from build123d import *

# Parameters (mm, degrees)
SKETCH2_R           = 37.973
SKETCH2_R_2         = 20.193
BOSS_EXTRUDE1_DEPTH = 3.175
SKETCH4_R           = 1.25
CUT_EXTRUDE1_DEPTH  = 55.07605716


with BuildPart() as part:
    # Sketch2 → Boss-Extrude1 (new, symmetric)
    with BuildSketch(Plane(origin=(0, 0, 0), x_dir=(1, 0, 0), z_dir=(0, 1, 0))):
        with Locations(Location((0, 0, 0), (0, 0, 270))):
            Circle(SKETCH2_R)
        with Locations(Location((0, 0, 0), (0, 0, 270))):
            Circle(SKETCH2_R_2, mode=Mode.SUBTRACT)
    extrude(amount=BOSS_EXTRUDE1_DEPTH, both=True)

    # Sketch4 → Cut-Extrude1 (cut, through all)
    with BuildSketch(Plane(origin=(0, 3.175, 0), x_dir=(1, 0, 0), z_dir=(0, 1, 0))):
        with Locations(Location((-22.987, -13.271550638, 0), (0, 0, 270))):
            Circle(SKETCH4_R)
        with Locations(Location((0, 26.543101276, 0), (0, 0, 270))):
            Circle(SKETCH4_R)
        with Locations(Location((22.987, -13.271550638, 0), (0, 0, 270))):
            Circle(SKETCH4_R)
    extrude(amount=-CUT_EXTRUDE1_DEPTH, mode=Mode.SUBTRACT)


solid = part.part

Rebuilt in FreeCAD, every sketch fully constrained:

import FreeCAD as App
import Part
import Sketcher

V = App.Vector
Q = App.Units.Quantity

doc = App.newDocument("Part")
params = doc.addObject("Spreadsheet::Sheet", "Params")
for row, (alias, value) in enumerate([
    ("sketch1_diameter", "2.99 in"),
    ("sketch1_diameter2", "1.59 in"),
    ("pad1_length", "0.25 in"),
], start=1):
    params.set(f"A{row}", alias)
    params.set(f"B{row}", "=" + value)
    params.setAlias(f"B{row}", alias)

body = doc.addObject("PartDesign::Body", "Body")

# Sketch on XZ plane
sketch1 = body.newObject("Sketcher::SketchObject", "Sketch")
sketch1.AttachmentSupport = (doc.getObject("XZ_Plane"), [""])
sketch1.MapMode = "FlatFace"
sketch1.addGeometry(Part.Circle(V(0, 0, 0), V(0, 0, 1), 38), False)
sketch1.addGeometry(Part.Circle(V(0, 0, 0), V(0, 0, 1), 20), False)
sketch1.addConstraint(Sketcher.Constraint("Coincident", 0, 3, -1, 1))
sketch1.addConstraint(Sketcher.Constraint("Coincident", 1, 3, -1, 1))
sketch1.addConstraint(Sketcher.Constraint("Diameter", 0, Q("2.99 in")))
sketch1.addConstraint(Sketcher.Constraint("Diameter", 1, Q("1.59 in")))
sketch1.setExpression("Constraints[2]", "Params.sketch1_diameter")
sketch1.setExpression("Constraints[3]", "Params.sketch1_diameter2")
pad1 = body.newObject("PartDesign::Pad", "Pad")
pad1.Profile = sketch1
pad1.setExpression("Length", "Params.pad1_length")
pad1.Midplane = True

# Sketch on XZ plane
sketch2 = body.newObject("Sketcher::SketchObject", "Sketch001")
sketch2.AttachmentSupport = (doc.getObject("XZ_Plane"), [""])
sketch2.MapMode = "FlatFace"
sketch2.AttachmentOffset = App.Placement(V(0, 0, -0.125 * 25.4), App.Rotation())
sketch2.addGeometry(Part.Circle(V(-23, 13.3, 0), V(0, 0, 1), 1.2), False)
sketch2.addGeometry(Part.Circle(V(0, -26.5, 0), V(0, 0, 1), 1.2), False)
sketch2.addGeometry(Part.Circle(V(23, 13.3, 0), V(0, 0, 1), 1.2), False)
sketch2.addConstraint(Sketcher.Constraint("Equal", 0, 1))
sketch2.addConstraint(Sketcher.Constraint("Equal", 1, 2))
sketch2.addConstraint(Sketcher.Constraint("Symmetric", 0, 3, 2, 3, -2))
sketch2.addConstraint(Sketcher.Constraint("PointOnObject", 1, 3, -2))
sketch2.addConstraint(Sketcher.Constraint("Diameter", 0, 2.5))
sketch2.addConstraint(Sketcher.Constraint("DistanceX", 0, 3, 2, 3, Q("1.81 in")))
sketch2.addConstraint(Sketcher.Constraint("DistanceY", 1, 3, -1, 1, 26.543101))
sketch2.addConstraint(Sketcher.Constraint("DistanceY", -1, 1, 0, 3, 13.271551))
pocket1 = body.newObject("PartDesign::Pocket", "Pocket")
pocket1.Profile = sketch2
pocket1.Type = "ThroughAll"
pocket1.Reversed = True

doc.recompute()
